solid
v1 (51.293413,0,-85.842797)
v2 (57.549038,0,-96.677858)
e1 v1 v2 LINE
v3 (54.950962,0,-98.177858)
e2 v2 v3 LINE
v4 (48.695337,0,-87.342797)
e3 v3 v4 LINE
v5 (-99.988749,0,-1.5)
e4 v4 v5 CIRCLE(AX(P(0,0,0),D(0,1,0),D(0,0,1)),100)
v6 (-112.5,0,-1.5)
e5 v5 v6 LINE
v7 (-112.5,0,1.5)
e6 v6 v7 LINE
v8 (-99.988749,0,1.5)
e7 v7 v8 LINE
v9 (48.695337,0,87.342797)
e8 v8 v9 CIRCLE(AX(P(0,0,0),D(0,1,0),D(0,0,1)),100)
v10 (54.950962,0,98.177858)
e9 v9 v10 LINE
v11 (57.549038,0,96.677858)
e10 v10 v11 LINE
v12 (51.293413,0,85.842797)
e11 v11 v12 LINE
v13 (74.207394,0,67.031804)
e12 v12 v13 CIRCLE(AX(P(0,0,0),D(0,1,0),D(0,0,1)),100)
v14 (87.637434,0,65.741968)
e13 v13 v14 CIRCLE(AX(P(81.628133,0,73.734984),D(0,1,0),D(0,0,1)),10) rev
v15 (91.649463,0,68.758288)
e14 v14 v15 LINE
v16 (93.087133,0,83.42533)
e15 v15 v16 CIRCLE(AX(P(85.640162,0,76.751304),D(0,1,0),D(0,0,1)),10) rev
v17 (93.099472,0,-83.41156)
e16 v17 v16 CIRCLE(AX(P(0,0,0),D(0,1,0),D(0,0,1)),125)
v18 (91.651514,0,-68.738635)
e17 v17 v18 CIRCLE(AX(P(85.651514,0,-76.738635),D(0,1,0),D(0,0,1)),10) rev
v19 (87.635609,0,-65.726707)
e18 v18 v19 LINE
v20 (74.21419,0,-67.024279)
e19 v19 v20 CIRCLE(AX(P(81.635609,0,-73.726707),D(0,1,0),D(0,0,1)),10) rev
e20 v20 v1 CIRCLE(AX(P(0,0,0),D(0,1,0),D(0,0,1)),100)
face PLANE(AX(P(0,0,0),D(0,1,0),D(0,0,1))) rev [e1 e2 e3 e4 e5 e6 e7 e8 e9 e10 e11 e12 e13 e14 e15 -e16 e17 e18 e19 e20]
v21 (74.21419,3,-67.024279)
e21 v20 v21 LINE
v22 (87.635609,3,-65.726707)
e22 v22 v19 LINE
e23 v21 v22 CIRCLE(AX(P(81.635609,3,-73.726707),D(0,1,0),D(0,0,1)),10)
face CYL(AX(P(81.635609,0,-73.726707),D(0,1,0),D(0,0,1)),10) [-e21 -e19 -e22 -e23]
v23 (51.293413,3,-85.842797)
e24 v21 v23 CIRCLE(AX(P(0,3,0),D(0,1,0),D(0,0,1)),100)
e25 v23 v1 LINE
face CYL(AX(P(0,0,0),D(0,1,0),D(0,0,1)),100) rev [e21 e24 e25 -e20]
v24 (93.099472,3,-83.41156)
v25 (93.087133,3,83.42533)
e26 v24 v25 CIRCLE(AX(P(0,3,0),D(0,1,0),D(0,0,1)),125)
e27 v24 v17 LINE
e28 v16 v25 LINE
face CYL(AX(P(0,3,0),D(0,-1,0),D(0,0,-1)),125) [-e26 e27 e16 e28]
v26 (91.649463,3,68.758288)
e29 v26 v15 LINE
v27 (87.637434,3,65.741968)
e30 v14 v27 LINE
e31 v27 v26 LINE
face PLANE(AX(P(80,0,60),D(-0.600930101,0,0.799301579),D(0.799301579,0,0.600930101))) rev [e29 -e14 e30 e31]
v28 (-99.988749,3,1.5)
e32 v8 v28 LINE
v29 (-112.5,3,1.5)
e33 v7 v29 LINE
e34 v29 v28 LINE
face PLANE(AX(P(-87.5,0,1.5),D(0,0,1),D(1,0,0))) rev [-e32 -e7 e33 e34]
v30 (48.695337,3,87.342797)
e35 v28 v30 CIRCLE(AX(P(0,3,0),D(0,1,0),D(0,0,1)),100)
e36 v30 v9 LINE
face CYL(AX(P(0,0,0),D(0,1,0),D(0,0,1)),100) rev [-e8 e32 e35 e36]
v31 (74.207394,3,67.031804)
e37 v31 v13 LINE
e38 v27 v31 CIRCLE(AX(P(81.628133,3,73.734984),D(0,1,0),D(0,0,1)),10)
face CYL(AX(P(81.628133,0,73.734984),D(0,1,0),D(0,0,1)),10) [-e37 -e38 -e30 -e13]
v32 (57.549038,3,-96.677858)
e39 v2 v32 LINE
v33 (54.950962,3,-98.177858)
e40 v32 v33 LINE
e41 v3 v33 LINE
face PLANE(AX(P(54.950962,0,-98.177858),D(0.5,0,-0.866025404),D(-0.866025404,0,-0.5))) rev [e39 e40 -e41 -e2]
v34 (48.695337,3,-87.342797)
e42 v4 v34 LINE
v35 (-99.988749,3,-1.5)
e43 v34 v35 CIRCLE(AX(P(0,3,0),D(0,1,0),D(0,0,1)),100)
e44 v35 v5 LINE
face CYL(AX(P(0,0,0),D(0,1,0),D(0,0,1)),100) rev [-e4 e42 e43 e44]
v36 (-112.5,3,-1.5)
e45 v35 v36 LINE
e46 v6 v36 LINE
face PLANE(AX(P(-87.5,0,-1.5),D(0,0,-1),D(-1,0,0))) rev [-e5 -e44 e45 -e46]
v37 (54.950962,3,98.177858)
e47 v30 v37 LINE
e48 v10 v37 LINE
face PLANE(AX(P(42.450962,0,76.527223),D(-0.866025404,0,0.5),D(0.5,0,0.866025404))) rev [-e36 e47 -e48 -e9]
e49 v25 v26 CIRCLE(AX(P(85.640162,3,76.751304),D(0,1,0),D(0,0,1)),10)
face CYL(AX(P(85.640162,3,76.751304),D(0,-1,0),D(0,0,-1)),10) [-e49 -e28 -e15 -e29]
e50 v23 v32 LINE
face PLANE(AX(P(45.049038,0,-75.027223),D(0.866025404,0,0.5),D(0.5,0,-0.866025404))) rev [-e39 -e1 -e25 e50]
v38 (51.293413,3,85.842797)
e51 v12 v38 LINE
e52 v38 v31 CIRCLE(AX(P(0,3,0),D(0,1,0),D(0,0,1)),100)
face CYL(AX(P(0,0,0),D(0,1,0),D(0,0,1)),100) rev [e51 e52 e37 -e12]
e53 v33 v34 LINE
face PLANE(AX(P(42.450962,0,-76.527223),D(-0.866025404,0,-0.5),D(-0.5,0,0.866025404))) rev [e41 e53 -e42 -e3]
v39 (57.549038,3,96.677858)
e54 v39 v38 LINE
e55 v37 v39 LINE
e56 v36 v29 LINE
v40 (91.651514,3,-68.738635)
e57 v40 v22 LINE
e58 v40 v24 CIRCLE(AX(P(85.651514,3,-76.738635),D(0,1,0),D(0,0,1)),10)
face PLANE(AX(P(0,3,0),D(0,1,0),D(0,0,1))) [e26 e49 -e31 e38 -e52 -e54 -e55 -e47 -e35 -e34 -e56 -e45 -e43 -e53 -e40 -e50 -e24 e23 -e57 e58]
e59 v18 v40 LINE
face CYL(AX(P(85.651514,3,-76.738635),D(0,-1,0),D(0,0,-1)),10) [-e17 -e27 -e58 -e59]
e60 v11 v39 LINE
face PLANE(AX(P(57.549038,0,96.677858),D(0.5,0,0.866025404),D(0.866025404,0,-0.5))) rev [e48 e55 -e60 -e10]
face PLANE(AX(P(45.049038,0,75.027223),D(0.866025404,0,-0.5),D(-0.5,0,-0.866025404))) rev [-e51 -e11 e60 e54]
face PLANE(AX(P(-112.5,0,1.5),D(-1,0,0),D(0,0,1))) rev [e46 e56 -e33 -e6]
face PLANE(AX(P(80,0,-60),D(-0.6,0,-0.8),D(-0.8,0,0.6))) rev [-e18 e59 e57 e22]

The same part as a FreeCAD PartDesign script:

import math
import FreeCAD as App
import Part
import Sketcher


def edges_at(feature, points):
    """Names of the edges that pass closest to the given points."""
    edges = feature.Shape.Edges
    near = lambda p: min(range(len(edges)), key=lambda i: edges[i].distToShape(Part.Vertex(*p))[0])
    return sorted({f"Edge{near(p) + 1}" for p in points})


def add_polygon(sketch, points):
    """Adds a closed chain of lines whose ends are joined by coincident constraints."""
    first, n = sketch.GeometryCount, len(points)
    for a, b in zip(points, points[1:] + points[:1]):
        sketch.addGeometry(Part.LineSegment(App.Vector(*a, 0), App.Vector(*b, 0)), False)
    for i in range(n):
        sketch.addConstraint(Sketcher.Constraint("Coincident", first + i, 2, first + (i + 1) % n, 1))

doc = App.newDocument("Part")
body = doc.addObject("PartDesign::Body", "Body")

sketch1 = doc.addObject("Sketcher::SketchObject", "Sketch")
body.addObject(sketch1)
sketch1.AttachmentSupport = (doc.XZ_Plane, [""])
sketch1.MapMode = "FlatFace"
sketch1.addGeometry(Part.Circle(App.Vector(0, 0, 0), App.Vector(0, 0, 1), 125), False)
sketch1.addConstraint([
    Sketcher.Constraint("Coincident", 0, 3, -1, 1),
    Sketcher.Constraint("Diameter", 0, 250.0),
])
pad1 = doc.addObject("PartDesign::Pad", "Pad")
body.addObject(pad1)
pad1.Profile = sketch1
pad1.Length = 3
pad1.Reversed = True

sketch2 = doc.addObject("Sketcher::SketchObject", "Sketch001")
body.addObject(sketch2)
sketch2.AttachmentSupport = (doc.XZ_Plane, [""])
sketch2.MapMode = "FlatFace"
sketch2.AttachmentOffset = App.Placement(App.Vector(0, 0, -3), App.Rotation())
sketch2.addGeometry(Part.Circle(App.Vector(0, 0, 0), App.Vector(0, 0, 1), 100), False)
sketch2.addConstraint([
    Sketcher.Constraint("Coincident", 0, 3, -1, 1),
    Sketcher.Constraint("Diameter", 0, 200.0),
])
pocket1 = doc.addObject("PartDesign::Pocket", "Pocket")
body.addObject(pocket1)
pocket1.Profile = sketch2
pocket1.Length = 3
pocket1.Reversed = True

sketch3 = doc.addObject("Sketcher::SketchObject", "Sketch002")
body.addObject(sketch3)
sketch3.AttachmentSupport = (doc.XZ_Plane, [""])
sketch3.MapMode = "FlatFace"
sketch3.AttachmentOffset = App.Placement(App.Vector(0, 0, -3), App.Rotation())
add_polygon(sketch3, [(-112.5, -1.5), (-112.5, 1.5), (-87.5, 1.5), (-87.5, -1.5)])
sketch3.addConstraint([
    Sketcher.Constraint("Vertical", 0),
    Sketcher.Constraint("Horizontal", 1),
    Sketcher.Constraint("Vertical", 2),
    Sketcher.Constraint("Horizontal", 3),
    Sketcher.Constraint("DistanceX", 1, 1, 1, 2, 25.0),
    Sketcher.Constraint("DistanceY", 0, 1, 0, 2, 3.0),
    Sketcher.Constraint("DistanceX", 0, 2, -1, 1, 112.5),
    Sketcher.Constraint("DistanceY", -1, 1, 0, 2, 1.5),
])
pocket2 = doc.addObject("PartDesign::Pocket", "Pocket001")
body.addObject(pocket2)
pocket2.Profile = sketch3
pocket2.Length = 3
pocket2.Reversed = True
doc.recompute()

polarpattern = doc.addObject("PartDesign::PolarPattern", "PolarPattern")
body.addObject(polarpattern)
polarpattern.Originals = [pocket2]
polarpattern.Axis = (doc.Y_Axis, [""])
polarpattern.Angle = 360
polarpattern.Occurrences = 3
body.Tip = polarpattern

sketch4 = doc.addObject("Sketcher::SketchObject", "Sketch003")
body.addObject(sketch4)
sketch4.AttachmentSupport = (doc.XZ_Plane, [""])
sketch4.MapMode = "FlatFace"
sketch4.AttachmentOffset = App.Placement(App.Vector(0, 0, -3), App.Rotation())
sketch4.addGeometry([
    Part.LineSegment(App.Vector(80, 60, 0), App.Vector(100, 75, 0)),
    Part.ArcOfCircle(Part.Circle(App.Vector(0, 0, 0), App.Vector(0, 0, 1), 125), math.radians(-37), math.radians(37)),
    Part.LineSegment(App.Vector(100, -75, 0), App.Vector(80, -60, 0)),
    Part.ArcOfCircle(Part.Circle(App.Vector(0, 0, 0), App.Vector(0, 0, 1), 100), math.radians(-37), math.radians(37)),
], False)
sketch4.addConstraint([
    Sketcher.Constraint("Coincident", 0, 2, 1, 2),
    Sketcher.Constraint("Coincident", 1, 1, 2, 1),
    Sketcher.Constraint("Coincident", 2, 2, 3, 1),
    Sketcher.Constraint("Coincident", 3, 2, 0, 1),
    Sketcher.Constraint("Coincident", 1, 3, -1, 1),
    Sketcher.Constraint("Coincident", 3, 3, -1, 1),
    Sketcher.Constraint("Vertical", 2, 2, 3, 2),
    Sketcher.Constraint("Radius", 1, 125.0),
    Sketcher.Constraint("Radius", 3, 100.0),
    Sketcher.Constraint("DistanceX", -1, 1, 1, 1, 100.0),
    Sketcher.Constraint("DistanceX", -1, 1, 2, 2, 80.0),
    Sketcher.Constraint("DistanceX", -1, 1, 0, 2, 99.98255),
])
pocket3 = doc.addObject("PartDesign::Pocket", "Pocket002")
body.addObject(pocket3)
pocket3.Profile = sketch4
pocket3.Length = 3
pocket3.Reversed = True
doc.recompute()

fillet = doc.addObject("PartDesign::Fillet", "Fillet")
body.addObject(fillet)
fillet.Base = (pocket3, edges_at(pocket3, [
    (80, 1.5, 60),
    (80, 1.5, -60),
    (100, 1.5, -75),
    (99.983, 1.5, 75.023),
]))
fillet.Radius = 10

doc.recompute()
